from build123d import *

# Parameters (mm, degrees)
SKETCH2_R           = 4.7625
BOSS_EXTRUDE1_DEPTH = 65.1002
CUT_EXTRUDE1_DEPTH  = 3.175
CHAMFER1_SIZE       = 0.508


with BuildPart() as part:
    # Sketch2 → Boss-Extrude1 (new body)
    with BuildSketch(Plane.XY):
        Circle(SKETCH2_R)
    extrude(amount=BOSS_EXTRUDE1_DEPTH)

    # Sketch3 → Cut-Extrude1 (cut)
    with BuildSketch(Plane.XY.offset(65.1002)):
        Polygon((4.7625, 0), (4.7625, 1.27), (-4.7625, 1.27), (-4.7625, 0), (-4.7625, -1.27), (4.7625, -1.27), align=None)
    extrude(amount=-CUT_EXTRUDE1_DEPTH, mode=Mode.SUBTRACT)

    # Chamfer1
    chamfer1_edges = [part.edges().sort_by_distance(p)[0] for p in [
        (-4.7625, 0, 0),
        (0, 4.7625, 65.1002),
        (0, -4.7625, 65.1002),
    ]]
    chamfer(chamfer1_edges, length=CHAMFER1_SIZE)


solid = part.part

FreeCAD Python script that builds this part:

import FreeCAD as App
import Part
import Sketcher
Q = App.Units.Quantity


def edges_at(feature, points):
    """Names of the edges that pass closest to the given points."""
    edges = feature.Shape.Edges
    near = lambda p: min(range(len(edges)), key=lambda i: edges[i].distToShape(Part.Vertex(*p))[0])
    return sorted({f"Edge{near(p) + 1}" for p in points})


def add_polygon(sketch, points):
    """Adds a closed chain of lines whose ends are joined by coincident constraints."""
    first, n = sketch.GeometryCount, len(points)
    for a, b in zip(points, points[1:] + points[:1]):
        sketch.addGeometry(Part.LineSegment(App.Vector(*a, 0), App.Vector(*b, 0)), False)
    for i in range(n):
        sketch.addConstraint(Sketcher.Constraint("Coincident", first + i, 2, first + (i + 1) % n, 1))

doc = App.newDocument("Part")
body = doc.addObject("PartDesign::Body", "Body")

# Sketch on XY plane
sketch1 = body.newObject("Sketcher::SketchObject", "Sketch")
sketch1.AttachmentSupport = (doc.getObject("XY_Plane"), [""])
sketch1.MapMode = "FlatFace"
sketch1.addGeometry(Part.Circle(App.Vector(0, 0, 0), App.Vector(0, 0, 1), 4.8), False)
sketch1.addConstraint([
    Sketcher.Constraint("Coincident", 0, 3, -1, 1),
    Sketcher.Constraint("Diameter", 0, Q("0.375 in")),
])
pad1 = body.newObject("PartDesign::Pad", "Pad")
pad1.Profile = sketch1
pad1.Length = Q("2.563 in")

# Sketch on XY plane
sketch2 = body.newObject("Sketcher::SketchObject", "Sketch001")
sketch2.AttachmentSupport = (doc.getObject("XY_Plane"), [""])
sketch2.MapMode = "FlatFace"
sketch2.AttachmentOffset = App.Placement(App.Vector(0, 0, 2.563 * 25.4), App.Rotation())
add_polygon(sketch2, [(4.8, 1.3), (-4.8, 1.3), (-4.8, -1.3), (4.8, -1.3)])  # lines 0-3
sketch2.addConstraint([
    Sketcher.Constraint("Horizontal", 0),
    Sketcher.Constraint("Vertical", 1),
    Sketcher.Constraint("Horizontal", 2),
    Sketcher.Constraint("Vertical", 3),
    Sketcher.Constraint("Symmetric", 0, 2, 2, 2, -1, 1),
    Sketcher.Constraint("DistanceY", 1, 2, 1, 1, Q("0.1 in")),
    Sketcher.Constraint("DistanceX", 0, 2, 0, 1, Q("0.375 in")),
])
pocket1 = body.newObject("PartDesign::Pocket", "Pocket")
pocket1.Profile = sketch2
pocket1.Length = Q("0.125 in")
doc.recompute()

chamfer = body.newObject("PartDesign::Chamfer", "Chamfer")
chamfer.Base = (pocket1, edges_at(pocket1, [(-4.763, 0, 0), (0, 4.763, 65.1), (0, -4.763, 65.1)]))
chamfer.Size = Q("0.02 in")

doc.recompute()
